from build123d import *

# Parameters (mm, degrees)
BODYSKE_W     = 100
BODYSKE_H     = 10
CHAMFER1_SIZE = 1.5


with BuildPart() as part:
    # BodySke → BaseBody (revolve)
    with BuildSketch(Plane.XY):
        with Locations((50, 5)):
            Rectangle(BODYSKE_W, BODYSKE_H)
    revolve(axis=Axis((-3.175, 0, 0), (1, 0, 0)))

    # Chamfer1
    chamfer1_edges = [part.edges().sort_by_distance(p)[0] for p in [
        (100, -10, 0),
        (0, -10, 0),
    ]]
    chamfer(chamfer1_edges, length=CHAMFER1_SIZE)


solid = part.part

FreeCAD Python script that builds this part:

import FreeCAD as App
import Part
import Sketcher
from FreeCAD import Vector


def edges_at(feature, points):
    """Names of the edges that pass closest to the given points."""
    edges = feature.Shape.Edges
    near = lambda p: min(range(len(edges)), key=lambda i: edges[i].distToShape(Part.Vertex(*p))[0])
    return sorted({f"Edge{near(p) + 1}" for p in points})


def add_polygon(sketch, points):
    """Adds a closed chain of lines whose ends are joined by coincident constraints."""
    first, n = sketch.GeometryCount, len(points)
    for a, b in zip(points, points[1:] + points[:1]):
        sketch.addGeometry(Part.LineSegment(App.Vector(*a, 0), App.Vector(*b, 0)), False)
    for i in range(n):
        sketch.addConstraint(Sketcher.Constraint("Coincident", first + i, 2, first + (i + 1) % n, 1))

doc = App.newDocument("Part")
body = doc.addObject("PartDesign::Body", "Body")

# Sketch on XY plane
sketch1 = body.newObject("Sketcher::SketchObject", "Sketch")
sketch1.AttachmentSupport = (doc.getObject("XY_Plane"), [""])
sketch1.MapMode = "FlatFace"
add_polygon(sketch1, [(0, 10), (0, 0), (100, 0), (100, 10)])  # lines 0-3
sketch1.addConstraint(Sketcher.Constraint("Vertical", 0))
sketch1.addConstraint(Sketcher.Constraint("Horizontal", 1))
sketch1.addConstraint(Sketcher.Constraint("Vertical", 2))
sketch1.addConstraint(Sketcher.Constraint("Horizontal", 3))
sketch1.addConstraint(Sketcher.Constraint("Coincident", 0, 2, -1, 1))
sketch1.addConstraint(Sketcher.Constraint("DistanceX", 1, 1, 1, 2, 100.0))
sketch1.addConstraint(Sketcher.Constraint("DistanceY", 0, 2, 0, 1, 10.0))
revolution = body.newObject("PartDesign::Revolution", "Revolution")
revolution.Profile = sketch1
revolution.ReferenceAxis = (sketch1, ["H_Axis"])
revolution.Angle = 360
doc.recompute()

chamfer = body.newObject("PartDesign::Chamfer", "Chamfer")
chamfer.Base = (revolution, edges_at(revolution, [(100, -10, 0), (0, -10, 0)]))
chamfer.Size = 1.5

doc.recompute()
